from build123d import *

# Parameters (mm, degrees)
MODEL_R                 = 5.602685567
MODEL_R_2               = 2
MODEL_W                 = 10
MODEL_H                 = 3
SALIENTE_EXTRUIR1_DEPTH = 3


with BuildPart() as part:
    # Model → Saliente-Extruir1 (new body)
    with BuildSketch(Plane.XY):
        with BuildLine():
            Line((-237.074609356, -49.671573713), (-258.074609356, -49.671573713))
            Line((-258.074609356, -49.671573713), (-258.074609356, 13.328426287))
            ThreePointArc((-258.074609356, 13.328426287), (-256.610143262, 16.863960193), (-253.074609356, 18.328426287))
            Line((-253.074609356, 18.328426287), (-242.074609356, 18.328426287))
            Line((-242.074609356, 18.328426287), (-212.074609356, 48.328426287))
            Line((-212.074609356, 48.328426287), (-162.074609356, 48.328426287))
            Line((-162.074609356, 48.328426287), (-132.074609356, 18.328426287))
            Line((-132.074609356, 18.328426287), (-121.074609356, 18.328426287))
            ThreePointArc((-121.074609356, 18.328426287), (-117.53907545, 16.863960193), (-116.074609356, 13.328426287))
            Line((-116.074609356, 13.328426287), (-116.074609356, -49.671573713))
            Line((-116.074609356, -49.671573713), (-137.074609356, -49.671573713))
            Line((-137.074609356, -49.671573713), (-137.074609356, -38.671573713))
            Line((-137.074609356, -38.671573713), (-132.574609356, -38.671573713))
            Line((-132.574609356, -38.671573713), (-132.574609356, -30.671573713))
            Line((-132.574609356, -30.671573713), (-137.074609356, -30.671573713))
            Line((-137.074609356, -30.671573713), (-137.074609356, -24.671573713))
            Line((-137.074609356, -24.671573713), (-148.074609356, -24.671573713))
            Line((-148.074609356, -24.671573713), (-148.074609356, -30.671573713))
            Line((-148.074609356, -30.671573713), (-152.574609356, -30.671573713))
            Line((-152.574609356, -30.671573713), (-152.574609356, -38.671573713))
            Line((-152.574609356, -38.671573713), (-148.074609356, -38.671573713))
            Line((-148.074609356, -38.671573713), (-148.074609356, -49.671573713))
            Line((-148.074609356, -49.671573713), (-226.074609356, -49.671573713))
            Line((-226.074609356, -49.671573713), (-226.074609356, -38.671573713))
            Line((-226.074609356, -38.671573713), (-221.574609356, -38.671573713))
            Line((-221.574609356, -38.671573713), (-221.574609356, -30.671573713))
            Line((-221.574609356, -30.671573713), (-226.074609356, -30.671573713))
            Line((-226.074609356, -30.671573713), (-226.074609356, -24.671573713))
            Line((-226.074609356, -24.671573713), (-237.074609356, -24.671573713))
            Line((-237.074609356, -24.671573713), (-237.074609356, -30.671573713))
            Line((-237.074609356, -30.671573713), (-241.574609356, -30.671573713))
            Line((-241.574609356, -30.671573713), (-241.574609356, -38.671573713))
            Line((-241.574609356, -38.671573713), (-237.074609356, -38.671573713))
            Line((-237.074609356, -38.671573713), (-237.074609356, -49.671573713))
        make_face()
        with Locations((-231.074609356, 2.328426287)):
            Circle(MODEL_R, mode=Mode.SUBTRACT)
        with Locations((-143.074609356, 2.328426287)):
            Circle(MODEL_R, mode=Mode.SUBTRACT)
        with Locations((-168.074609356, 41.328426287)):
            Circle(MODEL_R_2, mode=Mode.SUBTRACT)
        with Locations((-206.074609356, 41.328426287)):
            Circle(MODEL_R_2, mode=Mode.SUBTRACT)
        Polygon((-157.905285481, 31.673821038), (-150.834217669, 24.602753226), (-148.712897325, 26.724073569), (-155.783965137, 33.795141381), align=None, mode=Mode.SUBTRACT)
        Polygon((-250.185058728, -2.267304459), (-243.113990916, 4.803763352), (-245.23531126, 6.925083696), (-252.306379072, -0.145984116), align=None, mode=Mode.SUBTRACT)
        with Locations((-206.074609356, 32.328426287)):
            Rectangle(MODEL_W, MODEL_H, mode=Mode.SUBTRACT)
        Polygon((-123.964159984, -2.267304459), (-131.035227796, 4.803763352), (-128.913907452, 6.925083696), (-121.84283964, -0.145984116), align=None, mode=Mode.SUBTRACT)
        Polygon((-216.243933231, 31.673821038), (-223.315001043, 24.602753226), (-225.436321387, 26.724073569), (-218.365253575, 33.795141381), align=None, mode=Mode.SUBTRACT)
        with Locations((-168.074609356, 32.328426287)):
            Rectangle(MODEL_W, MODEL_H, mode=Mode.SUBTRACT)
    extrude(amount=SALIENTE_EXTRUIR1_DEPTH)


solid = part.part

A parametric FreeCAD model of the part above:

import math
import FreeCAD as App
import Part
import Sketcher
from FreeCAD import Vector
Q = App.Units.Quantity

doc = App.newDocument("Part")
params = doc.addObject("Spreadsheet::Sheet", "Params")
for row, (alias, value) in enumerate([
    ("sketch1_diameter", "4 mm"),
    ("sketch1_radius", "5 mm"),
    ("sketch1_width", "21 mm"),
    ("sketch1_width2", "11 mm"),
    ("sketch1_width3", "78 mm"),
    ("pad1_length", "3 mm"),
], start=1):
    params.set(f"A{row}", alias)
    params.set(f"B{row}", "=" + value)
    params.setAlias(f"B{row}", alias)

body = doc.addObject("PartDesign::Body", "Body")

# Sketch on XY plane
sketch1 = doc.addObject("Sketcher::SketchObject", "Sketch")
body.addObject(sketch1)
sketch1.AttachmentSupport = (doc.XY_Plane, [""])
sketch1.MapMode = "FlatFace"
sketch1.addGeometry([
    Part.LineSegment(Vector(-258.1, -49.7, 0), Vector(-237.1, -49.7, 0)),  # 0
    Part.LineSegment(Vector(-237.1, -49.7, 0), Vector(-237.1, -38.7, 0)),  # 1
    Part.LineSegment(Vector(-237.1, -38.7, 0), Vector(-241.6, -38.7, 0)),  # 2
    Part.LineSegment(Vector(-241.6, -38.7, 0), Vector(-241.6, -30.7, 0)),  # 3
    Part.LineSegment(Vector(-241.6, -30.7, 0), Vector(-237.1, -30.7, 0)),  # 4
    Part.LineSegment(Vector(-237.1, -30.7, 0), Vector(-237.1, -24.7, 0)),  # 5
    Part.LineSegment(Vector(-237.1, -24.7, 0), Vector(-226.1, -24.7, 0)),  # 6
    Part.LineSegment(Vector(-226.1, -24.7, 0), Vector(-226.1, -30.7, 0)),  # 7
    Part.LineSegment(Vector(-226.1, -30.7, 0), Vector(-221.6, -30.7, 0)),  # 8
    Part.LineSegment(Vector(-221.6, -30.7, 0), Vector(-221.6, -38.7, 0)),  # 9
    Part.LineSegment(Vector(-221.6, -38.7, 0), Vector(-226.1, -38.7, 0)),  # 10
    Part.LineSegment(Vector(-226.1, -38.7, 0), Vector(-226.1, -49.7, 0)),  # 11
    Part.LineSegment(Vector(-226.1, -49.7, 0), Vector(-148.1, -49.7, 0)),  # 12
    Part.LineSegment(Vector(-148.1, -49.7, 0), Vector(-148.1, -38.7, 0)),  # 13
    Part.LineSegment(Vector(-148.1, -38.7, 0), Vector(-152.6, -38.7, 0)),  # 14
    Part.LineSegment(Vector(-152.6, -38.7, 0), Vector(-152.6, -30.7, 0)),  # 15
    Part.LineSegment(Vector(-152.6, -30.7, 0), Vector(-148.1, -30.7, 0)),  # 16
    Part.LineSegment(Vector(-148.1, -30.7, 0), Vector(-148.1, -24.7, 0)),  # 17
    Part.LineSegment(Vector(-148.1, -24.7, 0), Vector(-137.1, -24.7, 0)),  # 18
    Part.LineSegment(Vector(-137.1, -24.7, 0), Vector(-137.1, -30.7, 0)),  # 19
    Part.LineSegment(Vector(-137.1, -30.7, 0), Vector(-132.6, -30.7, 0)),  # 20
    Part.LineSegment(Vector(-132.6, -30.7, 0), Vector(-132.6, -38.7, 0)),  # 21
    Part.LineSegment(Vector(-132.6, -38.7, 0), Vector(-137.1, -38.7, 0)),  # 22
    Part.LineSegment(Vector(-137.1, -38.7, 0), Vector(-137.1, -49.7, 0)),  # 23
    Part.LineSegment(Vector(-137.1, -49.7, 0), Vector(-116.1, -49.7, 0)),  # 24
    Part.LineSegment(Vector(-116.1, -49.7, 0), Vector(-116.1, 13.3, 0)),  # 25
    Part.ArcOfCircle(Part.Circle(Vector(-121.1, 13.3, 0), Vector(0, 0, 1), 5), math.radians(0), math.radians(90)),  # 26
    Part.LineSegment(Vector(-121.1, 18.3, 0), Vector(-132.1, 18.3, 0)),  # 27
    Part.LineSegment(Vector(-132.1, 18.3, 0), Vector(-162.1, 48.3, 0)),  # 28
    Part.LineSegment(Vector(-162.1, 48.3, 0), Vector(-212.1, 48.3, 0)),  # 29
    Part.LineSegment(Vector(-212.1, 48.3, 0), Vector(-242.1, 18.3, 0)),  # 30
    Part.LineSegment(Vector(-242.1, 18.3, 0), Vector(-253.1, 18.3, 0)),  # 31
    Part.ArcOfCircle(Part.Circle(Vector(-253.1, 13.3, 0), Vector(0, 0, 1), 5), math.radians(90), math.radians(180)),  # 32
    Part.LineSegment(Vector(-258.1, 13.3, 0), Vector(-258.1, -49.7, 0)),  # 33
    Part.LineSegment(Vector(-124, -2.3, 0), Vector(-131, 4.8, 0)),  # 34
    Part.LineSegment(Vector(-131, 4.8, 0), Vector(-128.9, 6.9, 0)),  # 35
    Part.LineSegment(Vector(-128.9, 6.9, 0), Vector(-121.8, -0.1, 0)),  # 36
    Part.LineSegment(Vector(-121.8, -0.1, 0), Vector(-124, -2.3, 0)),  # 37
    Part.Circle(Vector(-143.1, 2.3, 0), Vector(0, 0, 1), 5.6),  # 38
    Part.Circle(Vector(-231.1, 2.3, 0), Vector(0, 0, 1), 5.6),  # 39
    Part.LineSegment(Vector(-250.2, -2.3, 0), Vector(-252.3, -0.1, 0)),  # 40
    Part.LineSegment(Vector(-252.3, -0.1, 0), Vector(-245.2, 6.9, 0)),  # 41
    Part.LineSegment(Vector(-245.2, 6.9, 0), Vector(-243.1, 4.8, 0)),  # 42
    Part.LineSegment(Vector(-243.1, 4.8, 0), Vector(-250.2, -2.3, 0)),  # 43
    Part.LineSegment(Vector(-157.9, 31.7, 0), Vector(-155.8, 33.8, 0)),  # 44
    Part.LineSegment(Vector(-155.8, 33.8, 0), Vector(-148.7, 26.7, 0)),  # 45
    Part.LineSegment(Vector(-148.7, 26.7, 0), Vector(-150.8, 24.6, 0)),  # 46
    Part.LineSegment(Vector(-150.8, 24.6, 0), Vector(-157.9, 31.7, 0)),  # 47
    Part.LineSegment(Vector(-173.1, 30.8, 0), Vector(-173.1, 33.8, 0)),  # 48
    Part.LineSegment(Vector(-173.1, 33.8, 0), Vector(-163.1, 33.8, 0)),  # 49
    Part.LineSegment(Vector(-163.1, 33.8, 0), Vector(-163.1, 30.8, 0)),  # 50
    Part.LineSegment(Vector(-163.1, 30.8, 0), Vector(-173.1, 30.8, 0)),  # 51
    Part.Circle(Vector(-168.1, 41.3, 0), Vector(0, 0, 1), 2),  # 52
    Part.LineSegment(Vector(-216.2, 31.7, 0), Vector(-223.3, 24.6, 0)),  # 53
    Part.LineSegment(Vector(-223.3, 24.6, 0), Vector(-225.4, 26.7, 0)),  # 54
    Part.LineSegment(Vector(-225.4, 26.7, 0), Vector(-218.4, 33.8, 0)),  # 55
    Part.LineSegment(Vector(-218.4, 33.8, 0), Vector(-216.2, 31.7, 0)),  # 56
    Part.LineSegment(Vector(-211.1, 30.8, 0), Vector(-211.1, 33.8, 0)),  # 57
    Part.LineSegment(Vector(-211.1, 33.8, 0), Vector(-201.1, 33.8, 0)),  # 58
    Part.LineSegment(Vector(-201.1, 33.8, 0), Vector(-201.1, 30.8, 0)),  # 59
    Part.LineSegment(Vector(-201.1, 30.8, 0), Vector(-211.1, 30.8, 0)),  # 60
    Part.Circle(Vector(-206.1, 41.3, 0), Vector(0, 0, 1), 2),  # 61
], False)
sketch1.addConstraint([
    Sketcher.Constraint("Coincident", 0, 2, 1, 1),
    Sketcher.Constraint("Coincident", 1, 2, 2, 1),
    Sketcher.Constraint("Coincident", 2, 2, 3, 1),
    Sketcher.Constraint("Coincident", 3, 2, 4, 1),
    Sketcher.Constraint("Coincident", 4, 2, 5, 1),
    Sketcher.Constraint("Coincident", 5, 2, 6, 1),
    Sketcher.Constraint("Coincident", 6, 2, 7, 1),
    Sketcher.Constraint("Coincident", 7, 2, 8, 1),
    Sketcher.Constraint("Coincident", 8, 2, 9, 1),
    Sketcher.Constraint("Coincident", 9, 2, 10, 1),
    Sketcher.Constraint("Coincident", 10, 2, 11, 1),
    Sketcher.Constraint("Coincident", 11, 2, 12, 1),
    Sketcher.Constraint("Coincident", 12, 2, 13, 1),
    Sketcher.Constraint("Coincident", 13, 2, 14, 1),
    Sketcher.Constraint("Coincident", 14, 2, 15, 1),
    Sketcher.Constraint("Coincident", 15, 2, 16, 1),
    Sketcher.Constraint("Coincident", 16, 2, 17, 1),
    Sketcher.Constraint("Coincident", 17, 2, 18, 1),
    Sketcher.Constraint("Coincident", 18, 2, 19, 1),
    Sketcher.Constraint("Coincident", 19, 2, 20, 1),
    Sketcher.Constraint("Coincident", 20, 2, 21, 1),
    Sketcher.Constraint("Coincident", 21, 2, 22, 1),
    Sketcher.Constraint("Coincident", 22, 2, 23, 1),
    Sketcher.Constraint("Coincident", 23, 2, 24, 1),
    Sketcher.Constraint("Coincident", 24, 2, 25, 1),
    Sketcher.Constraint("Tangent", 25, 2, 26, 1),
    Sketcher.Constraint("Tangent", 26, 2, 27, 1),
    Sketcher.Constraint("Coincident", 27, 2, 28, 1),
    Sketcher.Constraint("Coincident", 28, 2, 29, 1),
    Sketcher.Constraint("Coincident", 29, 2, 30, 1),
    Sketcher.Constraint("Coincident", 30, 2, 31, 1),
    Sketcher.Constraint("Tangent", 31, 2, 32, 1),
    Sketcher.Constraint("Tangent", 32, 2, 33, 1),
    Sketcher.Constraint("Coincident", 33, 2, 0, 1),
    Sketcher.Constraint("Coincident", 34, 2, 35, 1),
    Sketcher.Constraint("Coincident", 35, 2, 36, 1),
    Sketcher.Constraint("Coincident", 36, 2, 37, 1),
    Sketcher.Constraint("Coincident", 37, 2, 34, 1),
    Sketcher.Constraint("Coincident", 40, 2, 41, 1),
    Sketcher.Constraint("Coincident", 41, 2, 42, 1),
    Sketcher.Constraint("Coincident", 42, 2, 43, 1),
    Sketcher.Constraint("Coincident", 43, 2, 40, 1),
    Sketcher.Constraint("Coincident", 44, 2, 45, 1),
    Sketcher.Constraint("Coincident", 45, 2, 46, 1),
    Sketcher.Constraint("Coincident", 46, 2, 47, 1),
    Sketcher.Constraint("Coincident", 47, 2, 44, 1),
    Sketcher.Constraint("Coincident", 48, 2, 49, 1),
    Sketcher.Constraint("Coincident", 49, 2, 50, 1),
    Sketcher.Constraint("Coincident", 50, 2, 51, 1),
    Sketcher.Constraint("Coincident", 51, 2, 48, 1),
    Sketcher.Constraint("Coincident", 53, 2, 54, 1),
    Sketcher.Constraint("Coincident", 54, 2, 55, 1),
    Sketcher.Constraint("Coincident", 55, 2, 56, 1),
    Sketcher.Constraint("Coincident", 56, 2, 53, 1),
    Sketcher.Constraint("Coincident", 57, 2, 58, 1),
    Sketcher.Constraint("Coincident", 58, 2, 59, 1),
    Sketcher.Constraint("Coincident", 59, 2, 60, 1),
    Sketcher.Constraint("Coincident", 60, 2, 57, 1),
    Sketcher.Constraint("Horizontal", 0),
    Sketcher.Constraint("Vertical", 1),
    Sketcher.Constraint("Horizontal", 2),
    Sketcher.Constraint("Vertical", 3),
    Sketcher.Constraint("Horizontal", 4),
    Sketcher.Constraint("Vertical", 5),
    Sketcher.Constraint("Horizontal", 6),
    Sketcher.Constraint("Vertical", 7),
    Sketcher.Constraint("Horizontal", 8),
    Sketcher.Constraint("Vertical", 9),
    Sketcher.Constraint("Horizontal", 10),
    Sketcher.Constraint("Vertical", 11),
    Sketcher.Constraint("Horizontal", 12),
    Sketcher.Constraint("Vertical", 13),
    Sketcher.Constraint("Horizontal", 14),
    Sketcher.Constraint("Vertical", 15),
    Sketcher.Constraint("Horizontal", 16),
    Sketcher.Constraint("Vertical", 17),
    Sketcher.Constraint("Horizontal", 18),
    Sketcher.Constraint("Vertical", 19),
    Sketcher.Constraint("Horizontal", 20),
    Sketcher.Constraint("Vertical", 21),
    Sketcher.Constraint("Horizontal", 22),
    Sketcher.Constraint("Vertical", 23),
    Sketcher.Constraint("Horizontal", 24),
    Sketcher.Constraint("Vertical", 25),
    Sketcher.Constraint("Horizontal", 27),
    Sketcher.Constraint("Horizontal", 29),
    Sketcher.Constraint("Horizontal", 31),
    Sketcher.Constraint("Vertical", 33),
    Sketcher.Constraint("Vertical", 48),
    Sketcher.Constraint("Horizontal", 49),
    Sketcher.Constraint("Vertical", 50),
    Sketcher.Constraint("Horizontal", 51),
    Sketcher.Constraint("Vertical", 57),
    Sketcher.Constraint("Horizontal", 58),
    Sketcher.Constraint("Vertical", 59),
    Sketcher.Constraint("Horizontal", 60),
    Sketcher.Constraint("Equal", 26, 32),
    Sketcher.Constraint("Equal", 38, 39),
    Sketcher.Constraint("Equal", 52, 61),
    Sketcher.Constraint("Perpendicular", 28, 30),
    Sketcher.Constraint("Perpendicular", 30, 34),
    Sketcher.Constraint("Perpendicular", 34, 35),
    Sketcher.Constraint("Perpendicular", 35, 36),
    Sketcher.Constraint("Perpendicular", 36, 37),
    Sketcher.Constraint("Perpendicular", 37, 40),
    Sketcher.Constraint("Perpendicular", 40, 41),
    Sketcher.Constraint("Perpendicular", 41, 42),
    Sketcher.Constraint("Perpendicular", 42, 43),
    Sketcher.Constraint("Parallel", 43, 44),
    Sketcher.Constraint("Perpendicular", 44, 45),
    Sketcher.Constraint("Perpendicular", 45, 46),
    Sketcher.Constraint("Perpendicular", 46, 47),
    Sketcher.Constraint("Perpendicular", 47, 53),
    Sketcher.Constraint("Perpendicular", 53, 54),
    Sketcher.Constraint("Perpendicular", 54, 55),
    Sketcher.Constraint("Perpendicular", 55, 56),
    Sketcher.Constraint("Horizontal", 26, 3, 32, 3),
    Sketcher.Constraint("Horizontal", 38, 3, 39, 3),
    Sketcher.Constraint("Horizontal", 52, 3, 61, 3),
    Sketcher.Constraint("Horizontal", 4, 2, 7, 2),
    Sketcher.Constraint("Horizontal", 2, 2, 9, 2),
    Sketcher.Constraint("Horizontal", 0, 2, 11, 2),
    Sketcher.Constraint("Horizontal", 10, 2, 13, 2),
    Sketcher.Constraint("Horizontal", 8, 2, 15, 2),
    Sketcher.Constraint("Horizontal", 6, 2, 17, 2),
    Sketcher.Constraint("Horizontal", 16, 2, 19, 2),
    Sketcher.Constraint("Horizontal", 14, 2, 21, 2),
    Sketcher.Constraint("Horizontal", 12, 2, 23, 2),
    Sketcher.Constraint("Horizontal", 36, 2, 40, 2),
    Sketcher.Constraint("Horizontal", 35, 2, 41, 2),
    Sketcher.Constraint("Horizontal", 34, 2, 42, 2),
    Sketcher.Constraint("Horizontal", 46, 2, 53, 2),
    Sketcher.Constraint("Horizontal", 45, 2, 54, 2),
    Sketcher.Constraint("Horizontal", 44, 2, 55, 2),
    Sketcher.Constraint("Horizontal", 49, 2, 57, 2),
    Sketcher.Constraint("Horizontal", 51, 2, 59, 2),
    Sketcher.Constraint("Vertical", 1, 2, 4, 2),
    Sketcher.Constraint("Vertical", 7, 2, 10, 2),
    Sketcher.Constraint("Vertical", 13, 2, 16, 2),
    Sketcher.Constraint("Vertical", 19, 2, 22, 2),
    Sketcher.Constraint("Equal", 4, 8),
    Sketcher.Constraint("Equal", 10, 14),
    Sketcher.Constraint("Equal", 6, 18),
    Sketcher.Constraint("Equal", 16, 20),
    Sketcher.Constraint("Equal", 0, 24),
    Sketcher.Constraint("Equal", 18, 27),
    Sketcher.Constraint("Equal", 27, 31),
    Sketcher.Constraint("Equal", 51, 58),
    Sketcher.Constraint("Equal", 31, 1),
    Sketcher.Constraint("Equal", 28, 30),
    Sketcher.Constraint("Equal", 42, 44),
    Sketcher.Constraint("Equal", 43, 45),
    Sketcher.Constraint("Diameter", 52, Q("4 mm")),
    Sketcher.Constraint("Radius", 26, Q("5 mm")),
    Sketcher.Constraint("DistanceX", 0, 1, 0, 2, Q("21 mm")),
    Sketcher.Constraint("DistanceX", 6, 1, 6, 2, Q("11 mm")),
    Sketcher.Constraint("DistanceX", 12, 1, 12, 2, Q("78 mm")),
    Sketcher.Constraint("DistanceX", 29, 2, 29, 1, Q("50 mm")),
    Sketcher.Constraint("DistanceX", 49, 1, 49, 2, Q("10 mm")),
    Sketcher.Constraint("DistanceY", 3, 1, 3, 2, Q("8 mm")),
    Sketcher.Constraint("DistanceY", 5, 1, 5, 2, Q("6 mm")),
    Sketcher.Constraint("DistanceY", 25, 1, 25, 2, Q("63 mm")),
    Sketcher.Constraint("DistanceY", 48, 1, 48, 2, Q("3 mm")),
    Sketcher.Constraint("Distance", 34, Q("10 mm")),
    Sketcher.Constraint("Distance", 35, Q("3 mm")),
    Sketcher.Constraint("DistanceX", 2, 2, 2, 1, Q("4.5 mm")),
    Sketcher.Constraint("Diameter", 38, Q("11.205371 mm")),
    Sketcher.Constraint("DistanceX", 53, 2, -1, 1, Q("223.315001 mm")),
    Sketcher.Constraint("DistanceX", 26, 3, -1, 1, Q("121.074609 mm")),
    Sketcher.Constraint("DistanceX", 38, 3, -1, 1, Q("143.074609 mm")),
    Sketcher.Constraint("DistanceX", 39, 3, -1, 1, Q("231.074609 mm")),
    Sketcher.Constraint("DistanceX", 52, 3, -1, 1, Q("168.074609 mm")),
    Sketcher.Constraint("DistanceX", 61, 3, -1, 1, Q("206.074609 mm")),
    Sketcher.Constraint("DistanceX", 36, 2, -1, 1, Q("121.84284 mm")),
    Sketcher.Constraint("DistanceX", 40, 2, -1, 1, Q("252.306379 mm")),
    Sketcher.Constraint("DistanceY", -1, 1, 44, 2, Q("33.795141 mm")),
    Sketcher.Constraint("DistanceX", 48, 2, -1, 1, Q("173.074609 mm")),
    Sketcher.Constraint("DistanceX", 57, 2, -1, 1, Q("211.074609 mm")),
    Sketcher.Constraint("DistanceY", -1, 1, 26, 3, Q("13.328426 mm")),
    Sketcher.Constraint("DistanceY", -1, 1, 38, 3, Q("2.328426 mm")),
    Sketcher.Constraint("DistanceY", -1, 1, 52, 3, Q("41.328426 mm")),
    Sketcher.Constraint("DistanceY", -1, 1, 34, 2, Q("4.803763 mm")),
    Sketcher.Constraint("DistanceX", 44, 2, -1, 1, Q("155.783965 mm")),
    Sketcher.Constraint("DistanceY", -1, 1, 48, 2, Q("33.828426 mm")),
])
sketch1.setExpression("Constraints[152]", "Params.sketch1_diameter")
sketch1.setExpression("Constraints[153]", "Params.sketch1_radius")
sketch1.setExpression("Constraints[154]", "Params.sketch1_width")
sketch1.setExpression("Constraints[155]", "Params.sketch1_width2")
sketch1.setExpression("Constraints[156]", "Params.sketch1_width3")
pad1 = doc.addObject("PartDesign::Pad", "Pad")
body.addObject(pad1)
pad1.Profile = sketch1
pad1.setExpression("Length", "Params.pad1_length")

doc.recompute()
